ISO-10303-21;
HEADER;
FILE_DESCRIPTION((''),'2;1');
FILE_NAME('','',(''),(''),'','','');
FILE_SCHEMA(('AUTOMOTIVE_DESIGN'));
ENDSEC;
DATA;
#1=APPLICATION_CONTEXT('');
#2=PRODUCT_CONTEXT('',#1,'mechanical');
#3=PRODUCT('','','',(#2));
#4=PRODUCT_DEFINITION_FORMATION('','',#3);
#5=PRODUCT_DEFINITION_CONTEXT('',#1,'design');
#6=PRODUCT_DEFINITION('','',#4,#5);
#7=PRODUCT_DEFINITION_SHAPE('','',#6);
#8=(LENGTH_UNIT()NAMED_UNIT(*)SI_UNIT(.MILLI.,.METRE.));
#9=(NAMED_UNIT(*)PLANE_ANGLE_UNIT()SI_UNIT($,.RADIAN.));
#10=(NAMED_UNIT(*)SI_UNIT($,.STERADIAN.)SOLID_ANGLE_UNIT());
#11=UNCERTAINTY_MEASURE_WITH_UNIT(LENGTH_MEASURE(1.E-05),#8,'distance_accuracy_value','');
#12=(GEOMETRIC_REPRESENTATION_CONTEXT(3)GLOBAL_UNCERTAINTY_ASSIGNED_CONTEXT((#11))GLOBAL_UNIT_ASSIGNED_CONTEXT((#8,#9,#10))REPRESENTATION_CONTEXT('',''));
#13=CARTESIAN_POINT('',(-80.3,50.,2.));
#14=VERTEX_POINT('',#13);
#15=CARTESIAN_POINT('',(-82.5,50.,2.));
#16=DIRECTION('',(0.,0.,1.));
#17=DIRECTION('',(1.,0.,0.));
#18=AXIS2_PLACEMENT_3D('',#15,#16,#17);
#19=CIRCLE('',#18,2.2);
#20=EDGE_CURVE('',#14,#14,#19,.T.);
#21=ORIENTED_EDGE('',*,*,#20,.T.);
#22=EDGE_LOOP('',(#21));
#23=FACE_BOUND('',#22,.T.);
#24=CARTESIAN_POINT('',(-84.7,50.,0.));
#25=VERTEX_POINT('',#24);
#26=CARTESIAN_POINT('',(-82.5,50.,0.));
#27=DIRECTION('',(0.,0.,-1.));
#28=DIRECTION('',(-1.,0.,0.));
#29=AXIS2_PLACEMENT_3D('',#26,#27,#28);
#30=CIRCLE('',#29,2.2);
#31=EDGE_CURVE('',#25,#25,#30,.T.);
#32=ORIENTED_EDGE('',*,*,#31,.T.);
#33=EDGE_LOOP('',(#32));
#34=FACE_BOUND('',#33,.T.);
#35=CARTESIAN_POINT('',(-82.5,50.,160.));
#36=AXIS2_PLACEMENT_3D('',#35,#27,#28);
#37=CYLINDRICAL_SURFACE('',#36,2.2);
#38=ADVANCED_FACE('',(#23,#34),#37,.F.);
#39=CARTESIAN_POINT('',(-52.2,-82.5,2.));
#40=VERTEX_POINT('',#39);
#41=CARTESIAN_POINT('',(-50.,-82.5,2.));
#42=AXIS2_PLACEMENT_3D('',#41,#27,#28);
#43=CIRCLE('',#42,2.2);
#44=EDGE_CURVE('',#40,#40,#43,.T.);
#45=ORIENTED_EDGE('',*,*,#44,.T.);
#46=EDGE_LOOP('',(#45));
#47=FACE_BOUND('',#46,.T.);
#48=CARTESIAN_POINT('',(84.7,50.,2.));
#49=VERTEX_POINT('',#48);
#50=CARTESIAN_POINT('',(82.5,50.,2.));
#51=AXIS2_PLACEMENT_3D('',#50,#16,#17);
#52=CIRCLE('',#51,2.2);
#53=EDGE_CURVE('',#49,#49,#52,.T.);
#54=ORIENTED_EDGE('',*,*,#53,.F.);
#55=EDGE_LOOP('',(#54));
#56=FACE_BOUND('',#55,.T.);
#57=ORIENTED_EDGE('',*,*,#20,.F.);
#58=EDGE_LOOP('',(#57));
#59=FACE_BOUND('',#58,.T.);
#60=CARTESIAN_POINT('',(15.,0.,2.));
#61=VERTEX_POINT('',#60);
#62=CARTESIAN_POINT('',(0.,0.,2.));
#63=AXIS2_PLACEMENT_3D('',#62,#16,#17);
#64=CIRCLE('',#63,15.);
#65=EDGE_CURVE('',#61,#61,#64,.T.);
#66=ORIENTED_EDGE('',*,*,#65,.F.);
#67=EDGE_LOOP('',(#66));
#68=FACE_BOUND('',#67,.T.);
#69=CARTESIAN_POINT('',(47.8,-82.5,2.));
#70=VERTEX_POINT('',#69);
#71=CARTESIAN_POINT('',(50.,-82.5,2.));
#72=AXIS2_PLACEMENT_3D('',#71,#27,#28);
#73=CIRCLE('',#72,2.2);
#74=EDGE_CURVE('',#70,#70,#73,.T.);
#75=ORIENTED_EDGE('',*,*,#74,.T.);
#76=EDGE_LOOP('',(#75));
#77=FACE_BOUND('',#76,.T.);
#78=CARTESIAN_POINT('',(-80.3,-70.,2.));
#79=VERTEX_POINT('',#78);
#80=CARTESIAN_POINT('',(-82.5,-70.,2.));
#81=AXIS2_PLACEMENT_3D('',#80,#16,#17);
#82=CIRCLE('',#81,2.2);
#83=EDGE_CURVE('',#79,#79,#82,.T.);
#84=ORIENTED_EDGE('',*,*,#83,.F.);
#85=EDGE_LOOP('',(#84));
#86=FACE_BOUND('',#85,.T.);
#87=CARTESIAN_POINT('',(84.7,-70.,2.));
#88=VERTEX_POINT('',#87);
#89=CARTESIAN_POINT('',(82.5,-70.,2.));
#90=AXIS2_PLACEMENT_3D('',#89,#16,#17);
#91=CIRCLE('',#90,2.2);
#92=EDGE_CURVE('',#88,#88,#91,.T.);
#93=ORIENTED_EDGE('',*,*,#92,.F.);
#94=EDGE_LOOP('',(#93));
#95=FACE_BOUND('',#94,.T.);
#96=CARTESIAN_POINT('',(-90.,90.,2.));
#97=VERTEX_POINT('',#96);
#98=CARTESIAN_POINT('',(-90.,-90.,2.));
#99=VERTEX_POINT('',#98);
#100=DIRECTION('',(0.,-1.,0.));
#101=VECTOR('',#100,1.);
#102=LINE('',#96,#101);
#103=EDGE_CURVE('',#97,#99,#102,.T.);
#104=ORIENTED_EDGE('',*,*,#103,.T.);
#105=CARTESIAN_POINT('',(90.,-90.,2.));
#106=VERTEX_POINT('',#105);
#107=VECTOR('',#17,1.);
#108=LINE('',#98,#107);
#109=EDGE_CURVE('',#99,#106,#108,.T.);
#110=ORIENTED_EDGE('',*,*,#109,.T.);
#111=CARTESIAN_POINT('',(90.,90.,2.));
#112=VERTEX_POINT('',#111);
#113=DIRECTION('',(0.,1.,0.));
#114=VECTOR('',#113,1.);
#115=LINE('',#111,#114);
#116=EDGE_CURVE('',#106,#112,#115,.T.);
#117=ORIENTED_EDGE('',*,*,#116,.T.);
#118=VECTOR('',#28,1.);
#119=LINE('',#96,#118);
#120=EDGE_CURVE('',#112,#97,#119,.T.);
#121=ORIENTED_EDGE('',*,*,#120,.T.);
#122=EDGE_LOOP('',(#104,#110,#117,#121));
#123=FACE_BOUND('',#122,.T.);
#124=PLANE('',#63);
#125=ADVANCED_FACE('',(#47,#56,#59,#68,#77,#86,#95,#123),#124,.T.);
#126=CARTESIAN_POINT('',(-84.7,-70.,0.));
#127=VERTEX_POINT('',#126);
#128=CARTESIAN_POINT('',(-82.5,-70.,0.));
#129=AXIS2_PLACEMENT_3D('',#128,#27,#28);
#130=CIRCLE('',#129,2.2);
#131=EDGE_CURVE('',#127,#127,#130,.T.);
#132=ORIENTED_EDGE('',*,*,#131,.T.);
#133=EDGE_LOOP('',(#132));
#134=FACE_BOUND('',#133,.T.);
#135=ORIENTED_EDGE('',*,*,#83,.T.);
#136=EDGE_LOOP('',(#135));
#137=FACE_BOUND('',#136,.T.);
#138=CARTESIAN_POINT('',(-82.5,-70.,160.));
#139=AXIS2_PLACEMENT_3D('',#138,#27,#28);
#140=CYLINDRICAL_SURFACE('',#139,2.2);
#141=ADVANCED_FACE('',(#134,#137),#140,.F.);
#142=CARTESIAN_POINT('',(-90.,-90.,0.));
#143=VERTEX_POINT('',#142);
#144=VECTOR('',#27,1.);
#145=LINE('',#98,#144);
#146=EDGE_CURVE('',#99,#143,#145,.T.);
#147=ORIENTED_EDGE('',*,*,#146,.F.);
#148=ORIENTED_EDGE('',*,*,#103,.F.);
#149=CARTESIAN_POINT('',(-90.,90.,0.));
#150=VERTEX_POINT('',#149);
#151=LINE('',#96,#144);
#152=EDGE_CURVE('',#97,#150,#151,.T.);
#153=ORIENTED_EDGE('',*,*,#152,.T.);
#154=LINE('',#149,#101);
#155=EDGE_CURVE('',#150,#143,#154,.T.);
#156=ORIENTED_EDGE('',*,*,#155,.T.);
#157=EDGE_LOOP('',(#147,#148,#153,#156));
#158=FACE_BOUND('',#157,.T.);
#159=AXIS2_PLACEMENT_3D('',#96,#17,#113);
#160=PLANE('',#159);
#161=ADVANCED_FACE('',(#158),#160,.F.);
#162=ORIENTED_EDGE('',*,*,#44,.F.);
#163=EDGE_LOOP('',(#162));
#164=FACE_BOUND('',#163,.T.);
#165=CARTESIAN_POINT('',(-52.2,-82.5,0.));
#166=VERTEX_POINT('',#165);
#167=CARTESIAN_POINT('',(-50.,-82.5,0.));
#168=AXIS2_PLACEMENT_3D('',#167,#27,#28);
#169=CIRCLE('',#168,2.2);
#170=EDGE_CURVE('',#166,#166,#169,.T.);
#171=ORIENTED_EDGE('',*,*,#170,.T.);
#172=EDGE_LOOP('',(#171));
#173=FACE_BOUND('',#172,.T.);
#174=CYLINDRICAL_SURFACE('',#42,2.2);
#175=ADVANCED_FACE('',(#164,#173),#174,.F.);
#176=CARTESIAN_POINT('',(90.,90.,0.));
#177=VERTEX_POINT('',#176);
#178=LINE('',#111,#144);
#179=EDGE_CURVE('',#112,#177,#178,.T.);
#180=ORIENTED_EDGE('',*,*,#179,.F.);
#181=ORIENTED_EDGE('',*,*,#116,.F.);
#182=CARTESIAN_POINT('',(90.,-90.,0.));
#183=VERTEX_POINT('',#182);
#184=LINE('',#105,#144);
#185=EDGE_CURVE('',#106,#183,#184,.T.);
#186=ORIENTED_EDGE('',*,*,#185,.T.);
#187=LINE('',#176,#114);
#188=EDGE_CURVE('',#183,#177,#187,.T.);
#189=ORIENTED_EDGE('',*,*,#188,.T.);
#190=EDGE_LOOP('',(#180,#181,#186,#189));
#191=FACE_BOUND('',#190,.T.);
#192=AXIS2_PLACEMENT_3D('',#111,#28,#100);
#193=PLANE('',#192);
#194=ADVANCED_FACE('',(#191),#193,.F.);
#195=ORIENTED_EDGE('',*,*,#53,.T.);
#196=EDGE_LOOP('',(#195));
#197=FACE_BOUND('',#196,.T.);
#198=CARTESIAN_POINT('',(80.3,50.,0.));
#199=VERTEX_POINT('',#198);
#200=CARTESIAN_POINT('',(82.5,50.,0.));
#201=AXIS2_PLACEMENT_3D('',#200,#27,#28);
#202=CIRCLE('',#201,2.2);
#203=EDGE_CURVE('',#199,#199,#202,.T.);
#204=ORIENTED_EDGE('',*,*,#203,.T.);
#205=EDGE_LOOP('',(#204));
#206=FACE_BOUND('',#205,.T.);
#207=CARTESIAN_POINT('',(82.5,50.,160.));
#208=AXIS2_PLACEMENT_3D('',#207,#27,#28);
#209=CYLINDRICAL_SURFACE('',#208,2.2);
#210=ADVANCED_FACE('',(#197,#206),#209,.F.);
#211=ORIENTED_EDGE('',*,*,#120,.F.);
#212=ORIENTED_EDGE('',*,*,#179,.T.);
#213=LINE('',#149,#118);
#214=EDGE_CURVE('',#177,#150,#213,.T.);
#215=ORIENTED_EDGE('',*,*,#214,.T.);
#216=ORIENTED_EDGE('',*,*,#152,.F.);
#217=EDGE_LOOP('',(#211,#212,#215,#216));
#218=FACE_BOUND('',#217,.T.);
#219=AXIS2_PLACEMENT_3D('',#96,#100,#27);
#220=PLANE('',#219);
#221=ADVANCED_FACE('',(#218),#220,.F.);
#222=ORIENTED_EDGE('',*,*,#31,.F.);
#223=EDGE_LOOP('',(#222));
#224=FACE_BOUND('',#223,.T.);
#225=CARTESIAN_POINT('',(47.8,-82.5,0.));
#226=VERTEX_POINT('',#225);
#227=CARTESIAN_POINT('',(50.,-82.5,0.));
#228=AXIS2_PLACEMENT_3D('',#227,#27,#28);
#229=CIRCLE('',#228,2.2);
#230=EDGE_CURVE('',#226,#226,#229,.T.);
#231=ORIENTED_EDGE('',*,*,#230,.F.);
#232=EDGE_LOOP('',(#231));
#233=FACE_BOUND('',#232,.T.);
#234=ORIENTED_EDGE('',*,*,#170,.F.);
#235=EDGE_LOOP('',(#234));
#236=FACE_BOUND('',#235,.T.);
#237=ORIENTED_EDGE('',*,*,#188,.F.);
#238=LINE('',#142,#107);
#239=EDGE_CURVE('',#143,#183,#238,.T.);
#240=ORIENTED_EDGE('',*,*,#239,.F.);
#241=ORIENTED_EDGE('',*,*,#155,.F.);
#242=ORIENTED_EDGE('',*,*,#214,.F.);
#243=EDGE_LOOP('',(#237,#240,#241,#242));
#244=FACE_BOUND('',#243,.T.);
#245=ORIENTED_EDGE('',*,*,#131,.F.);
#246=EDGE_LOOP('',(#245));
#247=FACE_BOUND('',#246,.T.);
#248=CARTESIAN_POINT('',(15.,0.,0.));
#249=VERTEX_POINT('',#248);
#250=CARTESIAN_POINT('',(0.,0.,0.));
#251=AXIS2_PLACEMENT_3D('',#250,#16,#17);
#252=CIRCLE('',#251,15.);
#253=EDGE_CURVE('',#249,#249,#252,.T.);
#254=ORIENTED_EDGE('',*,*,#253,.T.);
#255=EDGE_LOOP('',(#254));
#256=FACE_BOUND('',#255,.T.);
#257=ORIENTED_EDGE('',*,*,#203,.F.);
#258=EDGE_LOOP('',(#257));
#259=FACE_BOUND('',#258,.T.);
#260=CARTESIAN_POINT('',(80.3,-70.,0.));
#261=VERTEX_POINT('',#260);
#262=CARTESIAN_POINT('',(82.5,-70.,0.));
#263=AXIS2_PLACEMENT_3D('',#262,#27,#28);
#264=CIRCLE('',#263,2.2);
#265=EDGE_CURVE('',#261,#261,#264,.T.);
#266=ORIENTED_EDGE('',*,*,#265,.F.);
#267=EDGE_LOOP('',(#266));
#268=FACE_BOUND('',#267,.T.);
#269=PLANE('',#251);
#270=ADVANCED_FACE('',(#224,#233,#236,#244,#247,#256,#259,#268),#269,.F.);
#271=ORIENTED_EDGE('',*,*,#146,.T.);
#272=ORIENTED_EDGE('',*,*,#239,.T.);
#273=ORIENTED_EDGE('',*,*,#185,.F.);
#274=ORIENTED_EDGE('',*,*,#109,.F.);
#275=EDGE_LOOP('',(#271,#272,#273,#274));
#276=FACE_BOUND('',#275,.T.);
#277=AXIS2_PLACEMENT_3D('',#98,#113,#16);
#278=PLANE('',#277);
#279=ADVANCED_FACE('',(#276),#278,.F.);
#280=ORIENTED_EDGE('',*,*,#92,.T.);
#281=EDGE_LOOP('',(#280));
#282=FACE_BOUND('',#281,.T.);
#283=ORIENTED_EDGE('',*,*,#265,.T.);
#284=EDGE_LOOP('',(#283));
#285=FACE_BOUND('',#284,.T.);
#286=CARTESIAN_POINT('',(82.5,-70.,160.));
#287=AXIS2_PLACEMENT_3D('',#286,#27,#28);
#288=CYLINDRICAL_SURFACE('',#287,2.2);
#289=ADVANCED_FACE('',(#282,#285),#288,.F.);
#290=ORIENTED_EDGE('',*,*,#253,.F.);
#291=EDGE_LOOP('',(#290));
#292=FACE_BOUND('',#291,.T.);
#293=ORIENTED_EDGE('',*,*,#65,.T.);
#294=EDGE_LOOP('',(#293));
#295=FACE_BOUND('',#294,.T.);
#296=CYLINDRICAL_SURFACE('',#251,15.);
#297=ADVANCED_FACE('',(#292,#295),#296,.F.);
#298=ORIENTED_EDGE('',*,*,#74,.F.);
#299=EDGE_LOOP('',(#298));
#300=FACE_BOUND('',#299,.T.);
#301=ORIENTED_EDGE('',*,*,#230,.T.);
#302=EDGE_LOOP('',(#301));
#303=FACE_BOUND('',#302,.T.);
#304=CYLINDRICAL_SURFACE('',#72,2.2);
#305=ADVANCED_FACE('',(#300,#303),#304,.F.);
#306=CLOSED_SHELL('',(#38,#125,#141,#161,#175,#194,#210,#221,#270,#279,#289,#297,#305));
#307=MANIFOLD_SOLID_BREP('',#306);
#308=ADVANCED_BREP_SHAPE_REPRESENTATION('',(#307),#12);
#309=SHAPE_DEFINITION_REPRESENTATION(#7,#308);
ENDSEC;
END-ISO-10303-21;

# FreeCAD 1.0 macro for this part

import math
import FreeCAD as App
import Part
import Sketcher
from FreeCAD import Vector

doc = App.newDocument("Part")
body = doc.addObject("PartDesign::Body", "Body")

# Sketch on XY plane
sketch1 = body.newObject("Sketcher::SketchObject", "Sketch")
sketch1.AttachmentSupport = (doc.getObject("XY_Plane"), [""])
sketch1.MapMode = "FlatFace"
sketch1.addGeometry([
    Part.LineSegment(Vector(-90, 90, 0), Vector(-90, -90, 0)),
    Part.LineSegment(Vector(-90, -90, 0), Vector(90, -90, 0)),
    Part.LineSegment(Vector(90, -90, 0), Vector(90, 90, 0)),
    Part.LineSegment(Vector(90, 90, 0), Vector(-90, 90, 0)),
], False)
sketch1.addConstraint([
    Sketcher.Constraint("Coincident", 0, 2, 1, 1),
    Sketcher.Constraint("Coincident", 1, 2, 2, 1),
    Sketcher.Constraint("Coincident", 2, 2, 3, 1),
    Sketcher.Constraint("Coincident", 3, 2, 0, 1),
    Sketcher.Constraint("Vertical", 0),
    Sketcher.Constraint("Horizontal", 1),
    Sketcher.Constraint("Vertical", 2),
    Sketcher.Constraint("Horizontal", 3),
    Sketcher.Constraint("Symmetric", 0, 2, 2, 2, -1, 1),
    Sketcher.Constraint("Equal", 3, 0),
    Sketcher.Constraint("DistanceX", 1, 1, 1, 2, 180.0),
])
pad1 = body.newObject("PartDesign::Pad", "Pad")
pad1.Profile = sketch1
pad1.Length = 2

# Sketch on XY plane
sketch2 = body.newObject("Sketcher::SketchObject", "Sketch001")
sketch2.AttachmentSupport = (doc.getObject("XY_Plane"), [""])
sketch2.MapMode = "FlatFace"
sketch2.AttachmentOffset = App.Placement(Vector(0, 0, 2), App.Rotation())
sketch2.addGeometry(Part.Circle(Vector(0, 0, 0), Vector(0, 0, 1), 15), False)
sketch2.addConstraint([
    Sketcher.Constraint("Coincident", 0, 3, -1, 1),
    Sketcher.Constraint("Diameter", 0, 30.0),
])
pocket1 = body.newObject("PartDesign::Pocket", "Pocket")
pocket1.Profile = sketch2
pocket1.Length = 2

# Sketch on XY plane
sketch3 = body.newObject("Sketcher::SketchObject", "Sketch002")
sketch3.AttachmentSupport = (doc.getObject("XY_Plane"), [""])
sketch3.MapMode = "FlatFace"
sketch3.addGeometry([
    Part.ArcOfCircle(Part.Circle(Vector(50, -82.5, 0), Vector(0, 0, 1), 2.2), math.radians(-90), math.radians(0)),  # 0
    Part.ArcOfCircle(Part.Circle(Vector(50, -82.5, 0), Vector(0, 0, 1), 2.2), math.radians(180), math.radians(270)),  # 1
    Part.ArcOfCircle(Part.Circle(Vector(50, -82.5, 0), Vector(0, 0, 1), 2.2), math.radians(0), math.radians(180)),  # 2
    Part.ArcOfCircle(Part.Circle(Vector(-50, -82.5, 0), Vector(0, 0, 1), 2.2), math.radians(-90), math.radians(180)),  # 3
    Part.ArcOfCircle(Part.Circle(Vector(-50, -82.5, 0), Vector(0, 0, 1), 2.2), math.radians(180), math.radians(270)),  # 4
], False)
sketch3.addConstraint([
    Sketcher.Constraint("Tangent", 0, 1, 1, 2),
    Sketcher.Constraint("Tangent", 1, 1, 2, 2),
    Sketcher.Constraint("Tangent", 2, 1, 0, 2),
    Sketcher.Constraint("Tangent", 3, 1, 4, 2),
    Sketcher.Constraint("Coincident", 4, 1, 3, 2),
    Sketcher.Constraint("Equal", 2, 3),
    Sketcher.Constraint("Symmetric", 0, 3, 3, 3, -2),
    Sketcher.Constraint("Horizontal", 4, 3, 1, 1),
    Sketcher.Constraint("Horizontal", 1, 1, 2, 1),
    Sketcher.Constraint("Horizontal", 2, 1, 4, 1),
    Sketcher.Constraint("Vertical", 2, 3, 0, 1),
    Sketcher.Constraint("Vertical", 4, 3, 3, 1),
    Sketcher.Constraint("Radius", 0, 2.2),
    Sketcher.Constraint("DistanceX", -1, 1, 0, 3, 50.0),
    Sketcher.Constraint("DistanceY", 0, 3, -1, 1, 82.5),
])
pocket2 = body.newObject("PartDesign::Pocket", "Pocket001")
pocket2.Profile = sketch3
pocket2.Type = "ThroughAll"
pocket2.Reversed = True

# Sketch on XY plane
sketch4 = body.newObject("Sketcher::SketchObject", "Sketch003")
sketch4.AttachmentSupport = (doc.getObject("XY_Plane"), [""])
sketch4.MapMode = "FlatFace"
sketch4.addGeometry([
    Part.Circle(Vector(82.5, -70, 0), Vector(0, 0, 1), 2.2),
    Part.Circle(Vector(82.5, 50, 0), Vector(0, 0, 1), 2.2),
    Part.Circle(Vector(-82.5, 50, 0), Vector(0, 0, 1), 2.2),
    Part.Circle(Vector(-82.5, -70, 0), Vector(0, 0, 1), 2.2),
], False)
sketch4.addConstraint([
    Sketcher.Constraint("Equal", 0, 1),
    Sketcher.Constraint("Equal", 1, 2),
    Sketcher.Constraint("Equal", 2, 3),
    Sketcher.Constraint("Symmetric", 1, 3, 2, 3, -2),
    Sketcher.Constraint("Symmetric", 0, 3, 3, 3, -2),
    Sketcher.Constraint("Vertical", 0, 3, 1, 3),
    Sketcher.Constraint("Diameter", 0, 4.4),
    Sketcher.Constraint("DistanceY", 0, 3, -1, 1, 70.0),
    Sketcher.Constraint("DistanceY", -1, 1, 1, 3, 50.0),
    Sketcher.Constraint("DistanceX", 2, 3, 1, 3, 165.0),
])
pocket3 = body.newObject("PartDesign::Pocket", "Pocket002")
pocket3.Profile = sketch4
pocket3.Length = 160
pocket3.Reversed = True

doc.recompute()
